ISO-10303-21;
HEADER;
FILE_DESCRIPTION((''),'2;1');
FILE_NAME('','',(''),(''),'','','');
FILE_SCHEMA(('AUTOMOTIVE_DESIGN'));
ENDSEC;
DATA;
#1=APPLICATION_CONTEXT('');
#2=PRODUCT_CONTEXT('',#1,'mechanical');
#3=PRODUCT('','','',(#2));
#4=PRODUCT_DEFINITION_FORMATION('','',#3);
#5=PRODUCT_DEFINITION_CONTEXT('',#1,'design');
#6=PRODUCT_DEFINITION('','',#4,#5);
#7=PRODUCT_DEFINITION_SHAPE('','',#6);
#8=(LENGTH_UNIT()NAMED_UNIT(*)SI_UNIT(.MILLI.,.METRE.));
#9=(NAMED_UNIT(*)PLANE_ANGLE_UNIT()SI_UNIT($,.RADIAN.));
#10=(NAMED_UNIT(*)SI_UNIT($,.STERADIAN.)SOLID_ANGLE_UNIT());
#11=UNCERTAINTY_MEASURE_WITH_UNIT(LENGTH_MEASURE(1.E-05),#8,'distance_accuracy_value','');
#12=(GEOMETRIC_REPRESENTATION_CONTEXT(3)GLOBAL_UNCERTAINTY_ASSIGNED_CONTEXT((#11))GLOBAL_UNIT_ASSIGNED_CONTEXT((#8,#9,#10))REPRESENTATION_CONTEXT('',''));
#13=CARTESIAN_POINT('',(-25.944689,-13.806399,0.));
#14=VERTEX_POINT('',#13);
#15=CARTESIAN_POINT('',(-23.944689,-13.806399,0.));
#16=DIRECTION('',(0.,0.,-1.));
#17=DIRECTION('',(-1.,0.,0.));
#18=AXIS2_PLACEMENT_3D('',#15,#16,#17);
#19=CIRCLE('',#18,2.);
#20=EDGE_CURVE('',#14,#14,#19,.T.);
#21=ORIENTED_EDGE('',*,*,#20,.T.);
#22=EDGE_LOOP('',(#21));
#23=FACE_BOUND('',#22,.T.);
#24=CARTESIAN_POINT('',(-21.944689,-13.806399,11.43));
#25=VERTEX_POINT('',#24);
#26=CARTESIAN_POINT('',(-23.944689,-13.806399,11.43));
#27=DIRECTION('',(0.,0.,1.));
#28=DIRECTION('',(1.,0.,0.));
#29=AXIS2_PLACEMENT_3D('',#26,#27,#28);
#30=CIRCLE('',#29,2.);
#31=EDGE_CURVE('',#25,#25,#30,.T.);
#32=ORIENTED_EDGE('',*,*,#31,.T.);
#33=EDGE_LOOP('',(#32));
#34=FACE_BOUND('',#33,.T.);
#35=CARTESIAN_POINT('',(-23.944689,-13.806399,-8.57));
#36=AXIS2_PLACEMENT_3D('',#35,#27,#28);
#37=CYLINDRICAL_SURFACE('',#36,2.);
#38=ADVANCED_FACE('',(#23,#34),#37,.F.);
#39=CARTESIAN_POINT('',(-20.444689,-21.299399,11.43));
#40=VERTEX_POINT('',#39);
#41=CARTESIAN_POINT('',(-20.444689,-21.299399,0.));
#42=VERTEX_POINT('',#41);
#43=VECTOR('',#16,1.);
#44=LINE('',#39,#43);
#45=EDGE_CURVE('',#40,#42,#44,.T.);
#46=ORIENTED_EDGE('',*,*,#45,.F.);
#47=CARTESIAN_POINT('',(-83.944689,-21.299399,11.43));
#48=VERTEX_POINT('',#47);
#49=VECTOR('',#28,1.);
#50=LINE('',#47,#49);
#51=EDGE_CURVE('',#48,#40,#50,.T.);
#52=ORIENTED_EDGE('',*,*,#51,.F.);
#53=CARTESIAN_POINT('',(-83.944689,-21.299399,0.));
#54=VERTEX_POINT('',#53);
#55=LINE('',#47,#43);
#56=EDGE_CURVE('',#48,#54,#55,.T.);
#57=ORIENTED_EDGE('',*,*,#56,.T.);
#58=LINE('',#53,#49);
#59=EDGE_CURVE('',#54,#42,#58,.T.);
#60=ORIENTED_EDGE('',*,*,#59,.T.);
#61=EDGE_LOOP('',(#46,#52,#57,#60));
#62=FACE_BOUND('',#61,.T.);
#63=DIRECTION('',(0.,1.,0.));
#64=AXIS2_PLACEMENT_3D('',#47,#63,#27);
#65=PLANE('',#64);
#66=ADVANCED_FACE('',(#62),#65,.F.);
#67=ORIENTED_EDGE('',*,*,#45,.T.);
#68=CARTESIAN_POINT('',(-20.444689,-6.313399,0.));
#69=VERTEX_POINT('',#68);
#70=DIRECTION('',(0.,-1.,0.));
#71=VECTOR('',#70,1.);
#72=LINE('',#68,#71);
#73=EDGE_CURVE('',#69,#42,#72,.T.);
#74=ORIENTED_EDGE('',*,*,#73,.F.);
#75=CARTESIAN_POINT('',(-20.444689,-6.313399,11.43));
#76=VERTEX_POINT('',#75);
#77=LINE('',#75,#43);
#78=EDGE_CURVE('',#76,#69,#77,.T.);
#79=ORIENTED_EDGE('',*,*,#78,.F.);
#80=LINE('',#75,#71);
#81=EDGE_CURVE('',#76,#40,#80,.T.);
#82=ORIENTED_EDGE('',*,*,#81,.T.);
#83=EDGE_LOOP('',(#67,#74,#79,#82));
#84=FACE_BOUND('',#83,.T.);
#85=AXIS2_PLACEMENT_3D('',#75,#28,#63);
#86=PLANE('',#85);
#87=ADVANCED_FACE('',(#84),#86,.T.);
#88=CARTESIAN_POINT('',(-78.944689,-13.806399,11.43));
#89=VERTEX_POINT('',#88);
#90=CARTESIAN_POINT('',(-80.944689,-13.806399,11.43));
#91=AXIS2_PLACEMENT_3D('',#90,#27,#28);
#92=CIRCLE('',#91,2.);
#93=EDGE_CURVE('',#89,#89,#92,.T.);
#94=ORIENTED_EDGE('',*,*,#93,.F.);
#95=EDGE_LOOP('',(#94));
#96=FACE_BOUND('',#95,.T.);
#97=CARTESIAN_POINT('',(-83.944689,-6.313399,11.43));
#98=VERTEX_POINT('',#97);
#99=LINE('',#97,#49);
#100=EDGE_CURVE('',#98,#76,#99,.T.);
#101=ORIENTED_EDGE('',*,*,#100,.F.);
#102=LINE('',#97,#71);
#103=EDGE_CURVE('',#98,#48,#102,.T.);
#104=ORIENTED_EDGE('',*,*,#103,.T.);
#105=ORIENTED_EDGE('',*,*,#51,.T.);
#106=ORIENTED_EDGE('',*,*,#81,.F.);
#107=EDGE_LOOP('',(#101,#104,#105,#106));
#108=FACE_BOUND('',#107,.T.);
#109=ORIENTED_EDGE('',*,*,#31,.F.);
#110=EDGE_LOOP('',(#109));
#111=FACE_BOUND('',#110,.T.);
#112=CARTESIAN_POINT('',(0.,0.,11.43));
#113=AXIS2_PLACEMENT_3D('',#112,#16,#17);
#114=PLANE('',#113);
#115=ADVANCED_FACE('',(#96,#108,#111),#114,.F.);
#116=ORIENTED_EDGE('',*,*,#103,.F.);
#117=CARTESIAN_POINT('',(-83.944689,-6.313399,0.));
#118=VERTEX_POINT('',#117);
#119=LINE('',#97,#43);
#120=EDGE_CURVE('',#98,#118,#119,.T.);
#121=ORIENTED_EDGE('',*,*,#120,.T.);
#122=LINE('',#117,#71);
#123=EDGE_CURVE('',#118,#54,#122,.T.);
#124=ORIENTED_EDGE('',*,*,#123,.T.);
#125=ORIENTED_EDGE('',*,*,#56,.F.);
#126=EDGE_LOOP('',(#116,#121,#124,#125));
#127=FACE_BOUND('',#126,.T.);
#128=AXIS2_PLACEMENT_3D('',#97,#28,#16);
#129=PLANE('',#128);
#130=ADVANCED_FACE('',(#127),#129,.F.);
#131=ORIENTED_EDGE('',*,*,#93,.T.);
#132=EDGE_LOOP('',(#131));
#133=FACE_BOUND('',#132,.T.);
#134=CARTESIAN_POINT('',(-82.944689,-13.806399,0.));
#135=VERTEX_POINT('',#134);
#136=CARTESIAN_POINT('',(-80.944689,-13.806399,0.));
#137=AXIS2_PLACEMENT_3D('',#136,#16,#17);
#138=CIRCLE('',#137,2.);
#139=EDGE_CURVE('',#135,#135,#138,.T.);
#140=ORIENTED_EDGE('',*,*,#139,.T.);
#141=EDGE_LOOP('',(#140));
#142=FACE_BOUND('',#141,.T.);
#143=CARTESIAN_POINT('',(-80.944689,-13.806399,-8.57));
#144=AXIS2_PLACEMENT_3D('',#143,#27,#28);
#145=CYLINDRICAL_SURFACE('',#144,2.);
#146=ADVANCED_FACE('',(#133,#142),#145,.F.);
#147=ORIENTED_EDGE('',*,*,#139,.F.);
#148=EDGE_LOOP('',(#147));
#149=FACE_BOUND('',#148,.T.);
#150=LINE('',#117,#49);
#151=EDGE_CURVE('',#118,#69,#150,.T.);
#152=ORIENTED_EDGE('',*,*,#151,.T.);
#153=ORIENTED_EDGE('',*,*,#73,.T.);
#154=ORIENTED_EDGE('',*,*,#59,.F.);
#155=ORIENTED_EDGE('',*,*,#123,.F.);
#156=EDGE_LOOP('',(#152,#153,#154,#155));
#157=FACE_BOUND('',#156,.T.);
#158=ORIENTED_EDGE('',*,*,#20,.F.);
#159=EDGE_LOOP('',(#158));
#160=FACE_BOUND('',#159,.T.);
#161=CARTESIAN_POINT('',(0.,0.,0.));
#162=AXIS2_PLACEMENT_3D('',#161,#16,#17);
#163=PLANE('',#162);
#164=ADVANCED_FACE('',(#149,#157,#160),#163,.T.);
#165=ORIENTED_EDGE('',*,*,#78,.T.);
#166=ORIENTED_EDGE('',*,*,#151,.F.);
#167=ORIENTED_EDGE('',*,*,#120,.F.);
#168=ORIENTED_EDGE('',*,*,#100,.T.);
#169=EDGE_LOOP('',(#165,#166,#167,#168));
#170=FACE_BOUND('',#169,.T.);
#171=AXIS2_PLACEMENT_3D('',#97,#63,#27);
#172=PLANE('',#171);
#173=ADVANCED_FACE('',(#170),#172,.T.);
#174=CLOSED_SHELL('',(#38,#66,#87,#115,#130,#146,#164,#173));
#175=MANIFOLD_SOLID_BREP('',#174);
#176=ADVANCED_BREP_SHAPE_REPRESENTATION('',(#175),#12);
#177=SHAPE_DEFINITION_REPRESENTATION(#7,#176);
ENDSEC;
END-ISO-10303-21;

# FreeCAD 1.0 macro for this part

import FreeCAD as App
import Part
import Sketcher
Q = App.Units.Quantity

doc = App.newDocument("Part")
params = doc.addObject("Spreadsheet::Sheet", "Params")
for row, (alias, value) in enumerate([
    ("sketch1_width", "2.5 in"),
    ("sketch1_height", "0.59 in"),
    ("pad1_length", "0.45 in"),
    ("pocket1_length", "20 mm"),
], start=1):
    params.set(f"A{row}", alias)
    params.set(f"B{row}", "=" + value)
    params.setAlias(f"B{row}", alias)

body = doc.addObject("PartDesign::Body", "Body")

# Sketch on XY plane
sketch1 = body.newObject("Sketcher::SketchObject", "Sketch")
sketch1.AttachmentSupport = (doc.getObject("XY_Plane"), [""])
sketch1.MapMode = "FlatFace"
sketch1.addGeometry(Part.LineSegment(App.Vector(-84, -6, 0), App.Vector(-84, -21, 0)), False)
sketch1.addGeometry(Part.LineSegment(App.Vector(-84, -21, 0), App.Vector(-20, -21, 0)), False)
sketch1.addGeometry(Part.LineSegment(App.Vector(-20, -21, 0), App.Vector(-20, -6, 0)), False)
sketch1.addGeometry(Part.LineSegment(App.Vector(-20, -6, 0), App.Vector(-84, -6, 0)), False)
sketch1.addConstraint(Sketcher.Constraint("Coincident", 0, 2, 1, 1))
sketch1.addConstraint(Sketcher.Constraint("Coincident", 1, 2, 2, 1))
sketch1.addConstraint(Sketcher.Constraint("Coincident", 2, 2, 3, 1))
sketch1.addConstraint(Sketcher.Constraint("Coincident", 3, 2, 0, 1))
sketch1.addConstraint(Sketcher.Constraint("Vertical", 0))
sketch1.addConstraint(Sketcher.Constraint("Horizontal", 1))
sketch1.addConstraint(Sketcher.Constraint("Vertical", 2))
sketch1.addConstraint(Sketcher.Constraint("Horizontal", 3))
sketch1.addConstraint(Sketcher.Constraint("DistanceX", 1, 1, 1, 2, Q("2.5 in")))
sketch1.addConstraint(Sketcher.Constraint("DistanceY", 0, 2, 0, 1, Q("0.59 in")))
sketch1.addConstraint(Sketcher.Constraint("DistanceY", 0, 2, -1, 1, 21.299399))
sketch1.addConstraint(Sketcher.Constraint("DistanceX", 0, 2, -1, 1, 83.944689))
sketch1.setExpression("Constraints[8]", "Params.sketch1_width")
sketch1.setExpression("Constraints[9]", "Params.sketch1_height")
pad1 = body.newObject("PartDesign::Pad", "Pad")
pad1.Profile = sketch1
pad1.setExpression("Length", "Params.pad1_length")

# Sketch on XY plane
sketch2 = body.newObject("Sketcher::SketchObject", "Sketch001")
sketch2.AttachmentSupport = (doc.getObject("XY_Plane"), [""])
sketch2.MapMode = "FlatFace"
sketch2.AttachmentOffset = App.Placement(App.Vector(0, 0, 0.45 * 25.4), App.Rotation())
sketch2.addGeometry(Part.Circle(App.Vector(-80.9, -13.8, 0), App.Vector(0, 0, 1), 2), False)
sketch2.addGeometry(Part.Circle(App.Vector(-23.9, -13.8, 0), App.Vector(0, 0, 1), 2), False)
sketch2.addConstraint(Sketcher.Constraint("Equal", 0, 1))
sketch2.addConstraint(Sketcher.Constraint("Horizontal", 0, 3, 1, 3))
sketch2.addConstraint(Sketcher.Constraint("Diameter", 0, 4.0))
sketch2.addConstraint(Sketcher.Constraint("DistanceY", 0, 3, -1, 1, 13.806399))
sketch2.addConstraint(Sketcher.Constraint("DistanceX", 0, 3, 1, 3, 57.0))
sketch2.addConstraint(Sketcher.Constraint("DistanceX", 0, 3, -1, 1, 80.944689))
pocket1 = body.newObject("PartDesign::Pocket", "Pocket")
pocket1.Profile = sketch2
pocket1.setExpression("Length", "Params.pocket1_length")

doc.recompute()
